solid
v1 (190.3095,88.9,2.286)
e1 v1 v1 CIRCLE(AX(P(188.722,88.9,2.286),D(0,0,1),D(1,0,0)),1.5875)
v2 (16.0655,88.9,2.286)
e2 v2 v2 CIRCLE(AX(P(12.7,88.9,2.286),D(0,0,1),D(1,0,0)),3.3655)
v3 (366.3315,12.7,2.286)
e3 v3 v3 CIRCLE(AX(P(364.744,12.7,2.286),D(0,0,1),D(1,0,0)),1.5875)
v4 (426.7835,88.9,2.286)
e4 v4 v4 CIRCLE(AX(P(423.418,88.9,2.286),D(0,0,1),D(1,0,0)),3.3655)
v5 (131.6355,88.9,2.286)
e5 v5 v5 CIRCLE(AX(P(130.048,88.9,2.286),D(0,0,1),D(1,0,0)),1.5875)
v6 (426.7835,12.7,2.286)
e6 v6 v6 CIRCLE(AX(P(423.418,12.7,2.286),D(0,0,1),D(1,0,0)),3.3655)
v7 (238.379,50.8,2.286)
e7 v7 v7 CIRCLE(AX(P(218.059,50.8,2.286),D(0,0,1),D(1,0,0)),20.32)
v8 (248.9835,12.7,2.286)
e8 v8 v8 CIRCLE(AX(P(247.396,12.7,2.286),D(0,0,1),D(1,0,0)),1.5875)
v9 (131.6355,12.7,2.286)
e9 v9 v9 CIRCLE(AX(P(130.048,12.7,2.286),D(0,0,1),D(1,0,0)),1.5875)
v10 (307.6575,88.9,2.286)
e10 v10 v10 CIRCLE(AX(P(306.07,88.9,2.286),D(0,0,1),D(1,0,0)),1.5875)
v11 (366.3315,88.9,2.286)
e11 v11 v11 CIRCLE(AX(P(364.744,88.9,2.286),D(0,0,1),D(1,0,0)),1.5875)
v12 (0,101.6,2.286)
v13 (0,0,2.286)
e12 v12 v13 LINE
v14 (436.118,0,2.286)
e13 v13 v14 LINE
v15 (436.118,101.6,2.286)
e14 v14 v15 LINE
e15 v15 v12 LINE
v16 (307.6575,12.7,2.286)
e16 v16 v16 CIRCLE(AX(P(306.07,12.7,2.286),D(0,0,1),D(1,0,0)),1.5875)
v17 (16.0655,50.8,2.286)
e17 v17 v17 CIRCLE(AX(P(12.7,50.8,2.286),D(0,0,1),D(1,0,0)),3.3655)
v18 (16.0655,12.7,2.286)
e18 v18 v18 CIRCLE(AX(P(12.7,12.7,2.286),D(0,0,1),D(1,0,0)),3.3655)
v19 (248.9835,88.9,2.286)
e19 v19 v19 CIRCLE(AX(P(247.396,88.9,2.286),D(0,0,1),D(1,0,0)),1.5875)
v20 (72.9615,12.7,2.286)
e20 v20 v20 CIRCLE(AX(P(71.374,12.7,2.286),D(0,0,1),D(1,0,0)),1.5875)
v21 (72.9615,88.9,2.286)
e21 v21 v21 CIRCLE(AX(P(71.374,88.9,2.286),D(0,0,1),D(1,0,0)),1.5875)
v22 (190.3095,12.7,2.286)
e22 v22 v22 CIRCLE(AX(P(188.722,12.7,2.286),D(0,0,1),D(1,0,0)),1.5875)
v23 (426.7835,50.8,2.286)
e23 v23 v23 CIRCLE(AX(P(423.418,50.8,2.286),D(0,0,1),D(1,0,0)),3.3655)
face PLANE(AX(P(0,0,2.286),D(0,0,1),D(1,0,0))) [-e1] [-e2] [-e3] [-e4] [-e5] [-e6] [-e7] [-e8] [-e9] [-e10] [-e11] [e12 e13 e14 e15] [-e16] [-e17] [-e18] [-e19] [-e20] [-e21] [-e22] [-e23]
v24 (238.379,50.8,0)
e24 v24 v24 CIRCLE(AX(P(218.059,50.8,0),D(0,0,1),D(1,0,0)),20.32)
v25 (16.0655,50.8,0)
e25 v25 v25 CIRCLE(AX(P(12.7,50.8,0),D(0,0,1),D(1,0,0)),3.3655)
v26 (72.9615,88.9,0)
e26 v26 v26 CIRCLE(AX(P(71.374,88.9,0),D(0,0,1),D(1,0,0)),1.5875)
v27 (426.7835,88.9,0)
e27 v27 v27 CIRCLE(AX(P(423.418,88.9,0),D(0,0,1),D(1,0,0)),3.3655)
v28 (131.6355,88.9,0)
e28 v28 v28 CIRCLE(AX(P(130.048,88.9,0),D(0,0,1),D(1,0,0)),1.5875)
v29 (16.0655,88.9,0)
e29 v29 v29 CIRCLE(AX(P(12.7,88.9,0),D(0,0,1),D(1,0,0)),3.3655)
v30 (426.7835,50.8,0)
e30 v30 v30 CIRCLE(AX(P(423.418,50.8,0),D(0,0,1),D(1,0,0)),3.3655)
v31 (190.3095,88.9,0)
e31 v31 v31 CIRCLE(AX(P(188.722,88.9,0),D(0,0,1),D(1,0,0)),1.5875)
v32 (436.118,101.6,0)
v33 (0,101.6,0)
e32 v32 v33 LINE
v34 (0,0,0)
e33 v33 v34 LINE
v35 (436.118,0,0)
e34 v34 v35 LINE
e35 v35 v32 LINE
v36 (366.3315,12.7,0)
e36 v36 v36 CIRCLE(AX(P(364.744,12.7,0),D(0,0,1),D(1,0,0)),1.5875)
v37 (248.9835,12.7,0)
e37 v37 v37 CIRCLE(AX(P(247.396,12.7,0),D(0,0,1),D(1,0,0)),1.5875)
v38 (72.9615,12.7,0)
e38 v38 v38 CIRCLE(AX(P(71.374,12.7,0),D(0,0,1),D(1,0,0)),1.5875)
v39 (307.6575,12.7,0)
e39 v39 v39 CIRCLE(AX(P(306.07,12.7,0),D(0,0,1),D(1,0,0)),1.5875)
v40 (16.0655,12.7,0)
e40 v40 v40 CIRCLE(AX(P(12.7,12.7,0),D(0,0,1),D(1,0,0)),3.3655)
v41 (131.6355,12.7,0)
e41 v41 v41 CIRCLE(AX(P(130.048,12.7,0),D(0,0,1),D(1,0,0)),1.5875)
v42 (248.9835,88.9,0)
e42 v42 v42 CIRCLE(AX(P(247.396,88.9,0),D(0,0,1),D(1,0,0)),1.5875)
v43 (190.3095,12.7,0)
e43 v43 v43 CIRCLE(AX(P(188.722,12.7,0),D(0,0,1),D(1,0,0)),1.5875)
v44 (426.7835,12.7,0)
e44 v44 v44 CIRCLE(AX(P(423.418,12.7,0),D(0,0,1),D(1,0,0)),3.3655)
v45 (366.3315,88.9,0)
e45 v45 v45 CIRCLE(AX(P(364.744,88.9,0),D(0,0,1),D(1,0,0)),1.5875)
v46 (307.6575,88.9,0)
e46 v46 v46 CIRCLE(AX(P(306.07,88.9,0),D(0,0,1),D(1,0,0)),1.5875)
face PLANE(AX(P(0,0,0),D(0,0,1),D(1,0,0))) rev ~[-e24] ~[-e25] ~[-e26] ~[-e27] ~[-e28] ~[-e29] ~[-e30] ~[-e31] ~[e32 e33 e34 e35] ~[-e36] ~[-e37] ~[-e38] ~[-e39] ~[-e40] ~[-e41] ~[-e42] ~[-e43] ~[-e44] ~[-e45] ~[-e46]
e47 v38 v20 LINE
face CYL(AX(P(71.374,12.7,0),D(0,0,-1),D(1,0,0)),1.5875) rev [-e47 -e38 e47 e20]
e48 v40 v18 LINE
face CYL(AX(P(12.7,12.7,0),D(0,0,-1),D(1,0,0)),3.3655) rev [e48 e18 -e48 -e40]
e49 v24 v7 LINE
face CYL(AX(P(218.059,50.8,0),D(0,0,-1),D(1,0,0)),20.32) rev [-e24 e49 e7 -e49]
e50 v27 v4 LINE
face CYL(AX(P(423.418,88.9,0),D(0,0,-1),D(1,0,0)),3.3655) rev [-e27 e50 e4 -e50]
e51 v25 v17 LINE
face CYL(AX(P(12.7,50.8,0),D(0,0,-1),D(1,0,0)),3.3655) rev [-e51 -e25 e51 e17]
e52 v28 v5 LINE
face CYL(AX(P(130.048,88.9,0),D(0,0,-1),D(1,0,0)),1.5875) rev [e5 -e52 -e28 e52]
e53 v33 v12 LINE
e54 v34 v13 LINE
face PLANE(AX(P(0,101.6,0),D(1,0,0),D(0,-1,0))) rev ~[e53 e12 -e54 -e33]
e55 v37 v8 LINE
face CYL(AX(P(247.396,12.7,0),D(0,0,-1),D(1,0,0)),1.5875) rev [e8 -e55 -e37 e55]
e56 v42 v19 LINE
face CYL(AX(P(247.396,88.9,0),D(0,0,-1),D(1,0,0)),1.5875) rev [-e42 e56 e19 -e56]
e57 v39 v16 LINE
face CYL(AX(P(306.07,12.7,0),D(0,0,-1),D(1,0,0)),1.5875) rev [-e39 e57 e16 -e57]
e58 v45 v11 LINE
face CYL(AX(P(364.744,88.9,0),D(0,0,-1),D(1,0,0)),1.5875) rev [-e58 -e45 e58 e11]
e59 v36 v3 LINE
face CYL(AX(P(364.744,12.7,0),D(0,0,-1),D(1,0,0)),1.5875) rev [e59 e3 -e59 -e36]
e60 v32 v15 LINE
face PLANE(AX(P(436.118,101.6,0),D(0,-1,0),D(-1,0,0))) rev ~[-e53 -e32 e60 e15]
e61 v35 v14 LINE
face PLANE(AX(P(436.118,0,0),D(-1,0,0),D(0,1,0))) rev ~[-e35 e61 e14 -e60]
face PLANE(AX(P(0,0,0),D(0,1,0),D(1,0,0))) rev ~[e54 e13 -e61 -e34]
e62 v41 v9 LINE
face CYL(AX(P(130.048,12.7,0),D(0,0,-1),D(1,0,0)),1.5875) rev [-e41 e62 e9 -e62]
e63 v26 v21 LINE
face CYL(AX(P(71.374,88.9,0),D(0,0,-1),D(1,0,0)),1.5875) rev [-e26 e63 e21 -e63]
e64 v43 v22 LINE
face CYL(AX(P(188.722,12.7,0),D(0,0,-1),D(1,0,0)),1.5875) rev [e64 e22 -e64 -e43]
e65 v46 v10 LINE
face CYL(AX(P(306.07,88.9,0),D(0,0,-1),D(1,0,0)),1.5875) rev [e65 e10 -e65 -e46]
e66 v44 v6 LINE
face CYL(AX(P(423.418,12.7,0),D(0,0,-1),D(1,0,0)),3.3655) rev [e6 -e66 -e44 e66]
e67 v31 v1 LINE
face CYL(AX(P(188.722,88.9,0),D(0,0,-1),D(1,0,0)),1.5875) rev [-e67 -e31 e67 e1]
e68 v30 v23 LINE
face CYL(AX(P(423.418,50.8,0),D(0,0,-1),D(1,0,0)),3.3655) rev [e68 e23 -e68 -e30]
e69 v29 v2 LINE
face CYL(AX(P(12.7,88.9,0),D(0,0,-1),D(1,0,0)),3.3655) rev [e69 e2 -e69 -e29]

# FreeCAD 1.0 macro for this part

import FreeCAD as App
import Part
import Sketcher

V = App.Vector
Q = App.Units.Quantity


def add_polygon(sketch, points):
    """Adds a closed chain of lines whose ends are joined by coincident constraints."""
    first, n = sketch.GeometryCount, len(points)
    for a, b in zip(points, points[1:] + points[:1]):
        sketch.addGeometry(Part.LineSegment(App.Vector(*a, 0), App.Vector(*b, 0)), False)
    for i in range(n):
        sketch.addConstraint(Sketcher.Constraint("Coincident", first + i, 2, first + (i + 1) % n, 1))

doc = App.newDocument("Part")
body = doc.addObject("PartDesign::Body", "Body")

sketch1 = body.newObject("Sketcher::SketchObject", "Sketch")
sketch1.AttachmentSupport = (doc.getObject("XY_Plane"), [""])
sketch1.MapMode = "FlatFace"
add_polygon(sketch1, [(0, 101.6), (0, 0), (436.1, 0), (436.1, 101.6)])
sketch1.addGeometry(Part.Circle(V(12.7, 12.7, 0), V(0, 0, 1), 3.4), False)
sketch1.addGeometry(Part.Circle(V(71.4, 12.7, 0), V(0, 0, 1), 1.6), False)
sketch1.addGeometry(Part.Circle(V(130, 12.7, 0), V(0, 0, 1), 1.6), False)
sketch1.addGeometry(Part.Circle(V(188.7, 12.7, 0), V(0, 0, 1), 1.6), False)
sketch1.addGeometry(Part.Circle(V(12.7, 50.8, 0), V(0, 0, 1), 3.4), False)
sketch1.addGeometry(Part.Circle(V(247.4, 12.7, 0), V(0, 0, 1), 1.6), False)
sketch1.addGeometry(Part.Circle(V(306.1, 12.7, 0), V(0, 0, 1), 1.6), False)
sketch1.addGeometry(Part.Circle(V(364.7, 12.7, 0), V(0, 0, 1), 1.6), False)
sketch1.addGeometry(Part.Circle(V(423.4, 12.7, 0), V(0, 0, 1), 3.4), False)
sketch1.addGeometry(Part.Circle(V(218.1, 50.8, 0), V(0, 0, 1), 20.3), False)
sketch1.addGeometry(Part.Circle(V(423.4, 50.8, 0), V(0, 0, 1), 3.4), False)
sketch1.addGeometry(Part.Circle(V(12.7, 88.9, 0), V(0, 0, 1), 3.4), False)
sketch1.addGeometry(Part.Circle(V(71.4, 88.9, 0), V(0, 0, 1), 1.6), False)
sketch1.addGeometry(Part.Circle(V(130, 88.9, 0), V(0, 0, 1), 1.6), False)
sketch1.addGeometry(Part.Circle(V(188.7, 88.9, 0), V(0, 0, 1), 1.6), False)
sketch1.addGeometry(Part.Circle(V(247.4, 88.9, 0), V(0, 0, 1), 1.6), False)
sketch1.addGeometry(Part.Circle(V(306.1, 88.9, 0), V(0, 0, 1), 1.6), False)
sketch1.addGeometry(Part.Circle(V(364.7, 88.9, 0), V(0, 0, 1), 1.6), False)
sketch1.addGeometry(Part.Circle(V(423.4, 88.9, 0), V(0, 0, 1), 3.4), False)
sketch1.addConstraint([
    Sketcher.Constraint("Vertical", 0),
    Sketcher.Constraint("Horizontal", 1),
    Sketcher.Constraint("Vertical", 2),
    Sketcher.Constraint("Horizontal", 3),
    Sketcher.Constraint("Coincident", 0, 2, -1, 1),
    Sketcher.Constraint("Equal", 5, 6),
    Sketcher.Constraint("Equal", 6, 7),
    Sketcher.Constraint("Equal", 4, 8),
    Sketcher.Constraint("Equal", 7, 9),
    Sketcher.Constraint("Equal", 9, 10),
    Sketcher.Constraint("Equal", 10, 11),
    Sketcher.Constraint("Equal", 8, 12),
    Sketcher.Constraint("Equal", 12, 14),
    Sketcher.Constraint("Equal", 14, 15),
    Sketcher.Constraint("Equal", 11, 16),
    Sketcher.Constraint("Equal", 16, 17),
    Sketcher.Constraint("Equal", 17, 18),
    Sketcher.Constraint("Equal", 18, 19),
    Sketcher.Constraint("Equal", 19, 20),
    Sketcher.Constraint("Equal", 20, 21),
    Sketcher.Constraint("Equal", 15, 22),
    Sketcher.Constraint("Horizontal", 4, 3, 5, 3),
    Sketcher.Constraint("Horizontal", 5, 3, 6, 3),
    Sketcher.Constraint("Horizontal", 6, 3, 7, 3),
    Sketcher.Constraint("Horizontal", 7, 3, 9, 3),
    Sketcher.Constraint("Horizontal", 9, 3, 10, 3),
    Sketcher.Constraint("Horizontal", 10, 3, 11, 3),
    Sketcher.Constraint("Horizontal", 11, 3, 12, 3),
    Sketcher.Constraint("Horizontal", 8, 3, 13, 3),
    Sketcher.Constraint("Horizontal", 13, 3, 14, 3),
    Sketcher.Constraint("Horizontal", 15, 3, 16, 3),
    Sketcher.Constraint("Horizontal", 16, 3, 17, 3),
    Sketcher.Constraint("Horizontal", 17, 3, 18, 3),
    Sketcher.Constraint("Horizontal", 18, 3, 19, 3),
    Sketcher.Constraint("Horizontal", 19, 3, 20, 3),
    Sketcher.Constraint("Horizontal", 20, 3, 21, 3),
    Sketcher.Constraint("Horizontal", 21, 3, 22, 3),
    Sketcher.Constraint("Vertical", 4, 3, 8, 3),
    Sketcher.Constraint("Vertical", 12, 3, 14, 3),
    Sketcher.Constraint("Vertical", 8, 3, 15, 3),
    Sketcher.Constraint("Vertical", 5, 3, 16, 3),
    Sketcher.Constraint("Vertical", 6, 3, 17, 3),
    Sketcher.Constraint("Vertical", 7, 3, 18, 3),
    Sketcher.Constraint("Vertical", 9, 3, 19, 3),
    Sketcher.Constraint("Vertical", 10, 3, 20, 3),
    Sketcher.Constraint("Vertical", 11, 3, 21, 3),
    Sketcher.Constraint("Vertical", 14, 3, 22, 3),
    Sketcher.Constraint("Diameter", 13, Q("1.6 in")),
    Sketcher.Constraint("DistanceY", 0, 2, 0, 1, Q("4 in")),
    Sketcher.Constraint("Diameter", 4, Q("0.265 in")),
    Sketcher.Constraint("Diameter", 5, Q("0.125 in")),
    Sketcher.Constraint("DistanceY", -1, 1, 8, 3, Q("2 in")),
    Sketcher.Constraint("DistanceY", 4, 3, 15, 3, Q("3 in")),
    Sketcher.Constraint("DistanceX", 1, 1, 1, 2, Q("17.17 in")),
    Sketcher.Constraint("DistanceX", -1, 1, 4, 3, Q("0.5 in")),
    Sketcher.Constraint("DistanceY", -1, 1, 4, 3, Q("0.5 in")),
    Sketcher.Constraint("DistanceX", 12, 3, 1, 2, Q("0.5 in")),
    Sketcher.Constraint("DistanceX", 4, 3, 5, 3, Q("2.31 in")),
    Sketcher.Constraint("DistanceX", 5, 3, 6, 3, Q("2.31 in")),
    Sketcher.Constraint("DistanceX", 6, 3, 7, 3, Q("2.31 in")),
    Sketcher.Constraint("DistanceX", 7, 3, 9, 3, Q("2.31 in")),
    Sketcher.Constraint("DistanceX", 9, 3, 10, 3, Q("2.31 in")),
    Sketcher.Constraint("DistanceX", 10, 3, 11, 3, Q("2.31 in")),
    Sketcher.Constraint("DistanceX", -1, 1, 13, 3, Q("8.585 in")),
])
pad1 = body.newObject("PartDesign::Pad", "Pad")
pad1.Profile = sketch1
pad1.Length = Q("0.09 in")

doc.recompute()
